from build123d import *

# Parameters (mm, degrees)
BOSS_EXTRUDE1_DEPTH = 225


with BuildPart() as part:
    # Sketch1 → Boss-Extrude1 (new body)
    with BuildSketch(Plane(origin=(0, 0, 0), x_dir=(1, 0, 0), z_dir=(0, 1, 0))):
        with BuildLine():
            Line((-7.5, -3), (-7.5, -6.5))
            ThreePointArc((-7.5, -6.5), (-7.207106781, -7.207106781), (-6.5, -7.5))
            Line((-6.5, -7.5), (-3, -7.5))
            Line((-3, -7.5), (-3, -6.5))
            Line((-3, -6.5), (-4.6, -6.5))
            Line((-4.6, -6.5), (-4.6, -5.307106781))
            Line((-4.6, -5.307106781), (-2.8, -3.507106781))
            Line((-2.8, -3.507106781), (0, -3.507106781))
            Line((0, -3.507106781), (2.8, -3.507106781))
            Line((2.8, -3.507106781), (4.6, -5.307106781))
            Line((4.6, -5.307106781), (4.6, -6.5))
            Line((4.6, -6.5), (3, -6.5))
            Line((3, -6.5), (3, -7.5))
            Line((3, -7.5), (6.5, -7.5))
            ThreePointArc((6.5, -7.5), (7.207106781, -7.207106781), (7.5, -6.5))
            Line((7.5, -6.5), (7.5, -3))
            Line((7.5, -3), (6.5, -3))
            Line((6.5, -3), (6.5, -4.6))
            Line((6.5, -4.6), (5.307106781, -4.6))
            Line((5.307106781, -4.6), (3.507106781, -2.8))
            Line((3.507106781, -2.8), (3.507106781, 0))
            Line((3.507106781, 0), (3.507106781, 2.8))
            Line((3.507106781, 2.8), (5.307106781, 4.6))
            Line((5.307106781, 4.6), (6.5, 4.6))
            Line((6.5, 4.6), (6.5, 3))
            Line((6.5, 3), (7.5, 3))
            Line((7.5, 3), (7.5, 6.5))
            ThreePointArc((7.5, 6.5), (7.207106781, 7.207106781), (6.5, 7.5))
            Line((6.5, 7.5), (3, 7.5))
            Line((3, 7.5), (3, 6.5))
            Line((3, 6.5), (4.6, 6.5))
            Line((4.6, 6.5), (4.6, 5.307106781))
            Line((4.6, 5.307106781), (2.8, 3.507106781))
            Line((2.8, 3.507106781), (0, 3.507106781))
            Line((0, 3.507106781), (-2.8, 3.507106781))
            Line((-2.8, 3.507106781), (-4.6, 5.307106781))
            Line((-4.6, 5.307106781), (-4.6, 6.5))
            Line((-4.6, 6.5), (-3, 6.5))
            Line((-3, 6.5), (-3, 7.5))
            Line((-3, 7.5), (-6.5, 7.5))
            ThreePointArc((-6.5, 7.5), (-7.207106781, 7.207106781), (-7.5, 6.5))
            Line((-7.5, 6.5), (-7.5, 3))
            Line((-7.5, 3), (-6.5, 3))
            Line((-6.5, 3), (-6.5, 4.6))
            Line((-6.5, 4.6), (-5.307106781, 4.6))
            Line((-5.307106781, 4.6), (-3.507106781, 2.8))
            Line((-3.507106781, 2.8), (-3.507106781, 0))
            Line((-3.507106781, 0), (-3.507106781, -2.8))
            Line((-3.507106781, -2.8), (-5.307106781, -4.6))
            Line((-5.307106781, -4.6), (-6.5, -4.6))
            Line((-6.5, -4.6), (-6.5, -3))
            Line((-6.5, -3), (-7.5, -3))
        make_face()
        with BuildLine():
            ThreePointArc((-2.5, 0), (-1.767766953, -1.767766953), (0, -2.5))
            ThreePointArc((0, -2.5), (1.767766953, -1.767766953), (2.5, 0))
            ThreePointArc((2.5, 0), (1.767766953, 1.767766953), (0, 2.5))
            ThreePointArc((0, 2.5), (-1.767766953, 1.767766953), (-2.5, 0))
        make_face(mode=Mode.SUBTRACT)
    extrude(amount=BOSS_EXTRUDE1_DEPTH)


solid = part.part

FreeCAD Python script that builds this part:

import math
import FreeCAD as App
import Part
import Sketcher
from FreeCAD import Vector
Q = App.Units.Quantity

doc = App.newDocument("Part")
params = doc.addObject("Spreadsheet::Sheet", "Params")
for row, (alias, value) in enumerate([
    ("sketch1_radius", "1 mm"),
    ("sketch1_radius2", "2.5 mm"),
    ("sketch1_width", "3.5 mm"),
    ("sketch1_width2", "1.6 mm"),
    ("sketch1_width3", "5.6 mm"),
    ("pad1_length", "225 mm"),
], start=1):
    params.set(f"A{row}", alias)
    params.set(f"B{row}", "=" + value)
    params.setAlias(f"B{row}", alias)

body = doc.addObject("PartDesign::Body", "Body")

sketch1 = body.newObject("Sketcher::SketchObject", "Sketch")
sketch1.AttachmentSupport = (doc.getObject("XZ_Plane"), [""])
sketch1.MapMode = "FlatFace"
sketch1.addGeometry([
    Part.LineSegment(Vector(-7.5, 3, 0), Vector(-7.5, 6.5, 0)),
    Part.ArcOfCircle(Part.Circle(Vector(-6.5, 6.5, 0), Vector(0, 0, 1), 1), math.radians(90), math.radians(180)),
    Part.LineSegment(Vector(-6.5, 7.5, 0), Vector(-3, 7.5, 0)),
    Part.LineSegment(Vector(-3, 7.5, 0), Vector(-3, 6.5, 0)),
    Part.LineSegment(Vector(-3, 6.5, 0), Vector(-4.6, 6.5, 0)),
    Part.LineSegment(Vector(-4.6, 6.5, 0), Vector(-4.6, 5.3, 0)),
    Part.LineSegment(Vector(-4.6, 5.3, 0), Vector(-2.8, 3.5, 0)),
    Part.LineSegment(Vector(-2.8, 3.5, 0), Vector(2.8, 3.5, 0)),
    Part.LineSegment(Vector(2.8, 3.5, 0), Vector(4.6, 5.3, 0)),
    Part.LineSegment(Vector(4.6, 5.3, 0), Vector(4.6, 6.5, 0)),
    Part.LineSegment(Vector(4.6, 6.5, 0), Vector(3, 6.5, 0)),
    Part.LineSegment(Vector(3, 6.5, 0), Vector(3, 7.5, 0)),
    Part.LineSegment(Vector(3, 7.5, 0), Vector(6.5, 7.5, 0)),
    Part.ArcOfCircle(Part.Circle(Vector(6.5, 6.5, 0), Vector(0, 0, 1), 1), math.radians(0), math.radians(90)),
    Part.LineSegment(Vector(7.5, 6.5, 0), Vector(7.5, 3, 0)),
    Part.LineSegment(Vector(7.5, 3, 0), Vector(6.5, 3, 0)),
    Part.LineSegment(Vector(6.5, 3, 0), Vector(6.5, 4.6, 0)),
    Part.LineSegment(Vector(6.5, 4.6, 0), Vector(5.3, 4.6, 0)),
    Part.LineSegment(Vector(5.3, 4.6, 0), Vector(3.5, 2.8, 0)),
    Part.LineSegment(Vector(3.5, 2.8, 0), Vector(3.5, -2.8, 0)),
    Part.LineSegment(Vector(3.5, -2.8, 0), Vector(5.3, -4.6, 0)),
    Part.LineSegment(Vector(5.3, -4.6, 0), Vector(6.5, -4.6, 0)),
    Part.LineSegment(Vector(6.5, -4.6, 0), Vector(6.5, -3, 0)),
    Part.LineSegment(Vector(6.5, -3, 0), Vector(7.5, -3, 0)),
    Part.LineSegment(Vector(7.5, -3, 0), Vector(7.5, -6.5, 0)),
    Part.ArcOfCircle(Part.Circle(Vector(6.5, -6.5, 0), Vector(0, 0, 1), 1), math.radians(-90), math.radians(0)),
    Part.LineSegment(Vector(6.5, -7.5, 0), Vector(3, -7.5, 0)),
    Part.LineSegment(Vector(3, -7.5, 0), Vector(3, -6.5, 0)),
    Part.LineSegment(Vector(3, -6.5, 0), Vector(4.6, -6.5, 0)),
    Part.LineSegment(Vector(4.6, -6.5, 0), Vector(4.6, -5.3, 0)),
    Part.LineSegment(Vector(4.6, -5.3, 0), Vector(2.8, -3.5, 0)),
    Part.LineSegment(Vector(2.8, -3.5, 0), Vector(-2.8, -3.5, 0)),
    Part.LineSegment(Vector(-2.8, -3.5, 0), Vector(-4.6, -5.3, 0)),
    Part.LineSegment(Vector(-4.6, -5.3, 0), Vector(-4.6, -6.5, 0)),
    Part.LineSegment(Vector(-4.6, -6.5, 0), Vector(-3, -6.5, 0)),
    Part.LineSegment(Vector(-3, -6.5, 0), Vector(-3, -7.5, 0)),
    Part.LineSegment(Vector(-3, -7.5, 0), Vector(-6.5, -7.5, 0)),
    Part.ArcOfCircle(Part.Circle(Vector(-6.5, -6.5, 0), Vector(0, 0, 1), 1), math.radians(-180), math.radians(-90)),
    Part.LineSegment(Vector(-7.5, -6.5, 0), Vector(-7.5, -3, 0)),
    Part.LineSegment(Vector(-7.5, -3, 0), Vector(-6.5, -3, 0)),
    Part.LineSegment(Vector(-6.5, -3, 0), Vector(-6.5, -4.6, 0)),
    Part.LineSegment(Vector(-6.5, -4.6, 0), Vector(-5.3, -4.6, 0)),
    Part.LineSegment(Vector(-5.3, -4.6, 0), Vector(-3.5, -2.8, 0)),
    Part.LineSegment(Vector(-3.5, -2.8, 0), Vector(-3.5, 2.8, 0)),
    Part.LineSegment(Vector(-3.5, 2.8, 0), Vector(-5.3, 4.6, 0)),
    Part.LineSegment(Vector(-5.3, 4.6, 0), Vector(-6.5, 4.6, 0)),
    Part.LineSegment(Vector(-6.5, 4.6, 0), Vector(-6.5, 3, 0)),
    Part.LineSegment(Vector(-6.5, 3, 0), Vector(-7.5, 3, 0)),
    Part.ArcOfCircle(Part.Circle(Vector(0, 0, 0), Vector(0, 0, 1), 2.5), math.radians(90), math.radians(180)),
    Part.ArcOfCircle(Part.Circle(Vector(0, 0, 0), Vector(0, 0, 1), 2.5), math.radians(180), math.radians(270)),
    Part.ArcOfCircle(Part.Circle(Vector(0, 0, 0), Vector(0, 0, 1), 2.5), math.radians(-90), math.radians(0)),
    Part.ArcOfCircle(Part.Circle(Vector(0, 0, 0), Vector(0, 0, 1), 2.5), math.radians(0), math.radians(90)),
], False)
sketch1.addConstraint([
    Sketcher.Constraint("Tangent", 0, 2, 1, 2),
    Sketcher.Constraint("Tangent", 1, 1, 2, 1),
    Sketcher.Constraint("Coincident", 2, 2, 3, 1),
    Sketcher.Constraint("Coincident", 3, 2, 4, 1),
    Sketcher.Constraint("Coincident", 4, 2, 5, 1),
    Sketcher.Constraint("Coincident", 5, 2, 6, 1),
    Sketcher.Constraint("Coincident", 6, 2, 7, 1),
    Sketcher.Constraint("Coincident", 7, 2, 8, 1),
    Sketcher.Constraint("Coincident", 8, 2, 9, 1),
    Sketcher.Constraint("Coincident", 9, 2, 10, 1),
    Sketcher.Constraint("Coincident", 10, 2, 11, 1),
    Sketcher.Constraint("Coincident", 11, 2, 12, 1),
    Sketcher.Constraint("Tangent", 12, 2, 13, 2),
    Sketcher.Constraint("Tangent", 13, 1, 14, 1),
    Sketcher.Constraint("Coincident", 14, 2, 15, 1),
    Sketcher.Constraint("Coincident", 15, 2, 16, 1),
    Sketcher.Constraint("Coincident", 16, 2, 17, 1),
    Sketcher.Constraint("Coincident", 17, 2, 18, 1),
    Sketcher.Constraint("Coincident", 18, 2, 19, 1),
    Sketcher.Constraint("Coincident", 19, 2, 20, 1),
    Sketcher.Constraint("Coincident", 20, 2, 21, 1),
    Sketcher.Constraint("Coincident", 21, 2, 22, 1),
    Sketcher.Constraint("Coincident", 22, 2, 23, 1),
    Sketcher.Constraint("Coincident", 23, 2, 24, 1),
    Sketcher.Constraint("Tangent", 24, 2, 25, 2),
    Sketcher.Constraint("Tangent", 25, 1, 26, 1),
    Sketcher.Constraint("Coincident", 26, 2, 27, 1),
    Sketcher.Constraint("Coincident", 27, 2, 28, 1),
    Sketcher.Constraint("Coincident", 28, 2, 29, 1),
    Sketcher.Constraint("Coincident", 29, 2, 30, 1),
    Sketcher.Constraint("Coincident", 30, 2, 31, 1),
    Sketcher.Constraint("Coincident", 31, 2, 32, 1),
    Sketcher.Constraint("Coincident", 32, 2, 33, 1),
    Sketcher.Constraint("Coincident", 33, 2, 34, 1),
    Sketcher.Constraint("Coincident", 34, 2, 35, 1),
    Sketcher.Constraint("Coincident", 35, 2, 36, 1),
    Sketcher.Constraint("Tangent", 36, 2, 37, 2),
    Sketcher.Constraint("Tangent", 37, 1, 38, 1),
    Sketcher.Constraint("Coincident", 38, 2, 39, 1),
    Sketcher.Constraint("Coincident", 39, 2, 40, 1),
    Sketcher.Constraint("Coincident", 40, 2, 41, 1),
    Sketcher.Constraint("Coincident", 41, 2, 42, 1),
    Sketcher.Constraint("Coincident", 42, 2, 43, 1),
    Sketcher.Constraint("Coincident", 43, 2, 44, 1),
    Sketcher.Constraint("Coincident", 44, 2, 45, 1),
    Sketcher.Constraint("Coincident", 45, 2, 46, 1),
    Sketcher.Constraint("Coincident", 46, 2, 47, 1),
    Sketcher.Constraint("Coincident", 47, 2, 0, 1),
    Sketcher.Constraint("Tangent", 48, 2, 49, 1),
    Sketcher.Constraint("Tangent", 49, 2, 50, 1),
    Sketcher.Constraint("Tangent", 50, 2, 51, 1),
    Sketcher.Constraint("Tangent", 51, 2, 48, 1),
    Sketcher.Constraint("Vertical", 0),
    Sketcher.Constraint("Horizontal", 2),
    Sketcher.Constraint("Vertical", 3),
    Sketcher.Constraint("Horizontal", 4),
    Sketcher.Constraint("Vertical", 5),
    Sketcher.Constraint("Horizontal", 7),
    Sketcher.Constraint("Vertical", 9),
    Sketcher.Constraint("Horizontal", 10),
    Sketcher.Constraint("Vertical", 11),
    Sketcher.Constraint("Horizontal", 12),
    Sketcher.Constraint("Vertical", 14),
    Sketcher.Constraint("Horizontal", 15),
    Sketcher.Constraint("Vertical", 16),
    Sketcher.Constraint("Horizontal", 17),
    Sketcher.Constraint("Vertical", 19),
    Sketcher.Constraint("Horizontal", 21),
    Sketcher.Constraint("Vertical", 22),
    Sketcher.Constraint("Horizontal", 23),
    Sketcher.Constraint("Vertical", 24),
    Sketcher.Constraint("Horizontal", 26),
    Sketcher.Constraint("Vertical", 27),
    Sketcher.Constraint("Horizontal", 28),
    Sketcher.Constraint("Vertical", 29),
    Sketcher.Constraint("Horizontal", 31),
    Sketcher.Constraint("Vertical", 33),
    Sketcher.Constraint("Horizontal", 34),
    Sketcher.Constraint("Vertical", 35),
    Sketcher.Constraint("Horizontal", 36),
    Sketcher.Constraint("Vertical", 38),
    Sketcher.Constraint("Horizontal", 39),
    Sketcher.Constraint("Vertical", 40),
    Sketcher.Constraint("Horizontal", 41),
    Sketcher.Constraint("Vertical", 43),
    Sketcher.Constraint("Horizontal", 45),
    Sketcher.Constraint("Vertical", 46),
    Sketcher.Constraint("Horizontal", 47),
    Sketcher.Constraint("Coincident", 48, 3, -1, 1),
    Sketcher.Constraint("Equal", 1, 13),
    Sketcher.Constraint("Equal", 13, 25),
    Sketcher.Constraint("Equal", 25, 37),
    Sketcher.Constraint("Equal", 48, 49),
    Sketcher.Constraint("Symmetric", 1, 3, 25, 3, -1, 1),
    Sketcher.Constraint("Symmetric", 13, 3, 37, 3, -1, 1),
    Sketcher.Constraint("Symmetric", 3, 2, 27, 2, -1, 1),
    Sketcher.Constraint("Symmetric", 5, 2, 29, 2, -1, 1),
    Sketcher.Constraint("Symmetric", 6, 2, 30, 2, -1, 1),
    Sketcher.Constraint("Symmetric", 8, 2, 32, 2, -1, 1),
    Sketcher.Constraint("Symmetric", 10, 2, 34, 2, -1, 1),
    Sketcher.Constraint("Symmetric", 15, 2, 39, 2, -1, 1),
    Sketcher.Constraint("Symmetric", 17, 2, 41, 2, -1, 1),
    Sketcher.Constraint("Symmetric", 18, 2, 42, 2, -1, 1),
    Sketcher.Constraint("Symmetric", 20, 2, 44, 2, -1, 1),
    Sketcher.Constraint("Symmetric", 22, 2, 46, 2, -1, 1),
    Sketcher.Constraint("Symmetric", 1, 3, 13, 3, -2),
    Sketcher.Constraint("Symmetric", 5, 2, 8, 2, -2),
    Sketcher.Constraint("Symmetric", 3, 2, 10, 2, -2),
    Sketcher.Constraint("Symmetric", 22, 2, 39, 2, -2),
    Sketcher.Constraint("Symmetric", 20, 2, 41, 2, -2),
    Sketcher.Constraint("PointOnObject", 48, 2, -1),
    Sketcher.Constraint("PointOnObject", 49, 2, -2),
    Sketcher.Constraint("PointOnObject", 50, 2, -1),
    Sketcher.Constraint("PointOnObject", 51, 2, -2),
    Sketcher.Constraint("Perpendicular", 6, 8),
    Sketcher.Constraint("Parallel", 8, 18),
    Sketcher.Constraint("Perpendicular", 18, 20),
    Sketcher.Constraint("Perpendicular", 30, 32),
    Sketcher.Constraint("Perpendicular", 42, 44),
    Sketcher.Constraint("Horizontal", 0, 2, 3, 2),
    Sketcher.Constraint("Horizontal", 19, 2, 42, 2),
    Sketcher.Constraint("Vertical", 12, 2, 15, 2),
    Sketcher.Constraint("Equal", 36, 0),
    Sketcher.Constraint("Equal", 45, 5),
    Sketcher.Constraint("Equal", 34, 16),
    Sketcher.Constraint("Equal", 31, 19),
    Sketcher.Constraint("Equal", 8, 18),
    Sketcher.Constraint("Radius", 1, Q("1 mm")),
    Sketcher.Constraint("Radius", 48, Q("2.5 mm")),
    Sketcher.Constraint("DistanceX", 2, 1, 2, 2, Q("3.5 mm")),
    Sketcher.Constraint("DistanceX", 4, 2, 4, 1, Q("1.6 mm")),
    Sketcher.Constraint("DistanceX", 7, 1, 7, 2, Q("5.6 mm")),
    Sketcher.Constraint("DistanceX", 2, 2, -1, 1, Q("3 mm")),
    Sketcher.Constraint("DistanceX", 17, 2, 17, 1, Q("1.192893 mm")),
])
sketch1.setExpression("Constraints[127]", "Params.sketch1_radius")
sketch1.setExpression("Constraints[128]", "Params.sketch1_radius2")
sketch1.setExpression("Constraints[129]", "Params.sketch1_width")
sketch1.setExpression("Constraints[130]", "Params.sketch1_width2")
sketch1.setExpression("Constraints[131]", "Params.sketch1_width3")
pad1 = body.newObject("PartDesign::Pad", "Pad")
pad1.Profile = sketch1
pad1.setExpression("Length", "Params.pad1_length")
pad1.Reversed = True

doc.recompute()
